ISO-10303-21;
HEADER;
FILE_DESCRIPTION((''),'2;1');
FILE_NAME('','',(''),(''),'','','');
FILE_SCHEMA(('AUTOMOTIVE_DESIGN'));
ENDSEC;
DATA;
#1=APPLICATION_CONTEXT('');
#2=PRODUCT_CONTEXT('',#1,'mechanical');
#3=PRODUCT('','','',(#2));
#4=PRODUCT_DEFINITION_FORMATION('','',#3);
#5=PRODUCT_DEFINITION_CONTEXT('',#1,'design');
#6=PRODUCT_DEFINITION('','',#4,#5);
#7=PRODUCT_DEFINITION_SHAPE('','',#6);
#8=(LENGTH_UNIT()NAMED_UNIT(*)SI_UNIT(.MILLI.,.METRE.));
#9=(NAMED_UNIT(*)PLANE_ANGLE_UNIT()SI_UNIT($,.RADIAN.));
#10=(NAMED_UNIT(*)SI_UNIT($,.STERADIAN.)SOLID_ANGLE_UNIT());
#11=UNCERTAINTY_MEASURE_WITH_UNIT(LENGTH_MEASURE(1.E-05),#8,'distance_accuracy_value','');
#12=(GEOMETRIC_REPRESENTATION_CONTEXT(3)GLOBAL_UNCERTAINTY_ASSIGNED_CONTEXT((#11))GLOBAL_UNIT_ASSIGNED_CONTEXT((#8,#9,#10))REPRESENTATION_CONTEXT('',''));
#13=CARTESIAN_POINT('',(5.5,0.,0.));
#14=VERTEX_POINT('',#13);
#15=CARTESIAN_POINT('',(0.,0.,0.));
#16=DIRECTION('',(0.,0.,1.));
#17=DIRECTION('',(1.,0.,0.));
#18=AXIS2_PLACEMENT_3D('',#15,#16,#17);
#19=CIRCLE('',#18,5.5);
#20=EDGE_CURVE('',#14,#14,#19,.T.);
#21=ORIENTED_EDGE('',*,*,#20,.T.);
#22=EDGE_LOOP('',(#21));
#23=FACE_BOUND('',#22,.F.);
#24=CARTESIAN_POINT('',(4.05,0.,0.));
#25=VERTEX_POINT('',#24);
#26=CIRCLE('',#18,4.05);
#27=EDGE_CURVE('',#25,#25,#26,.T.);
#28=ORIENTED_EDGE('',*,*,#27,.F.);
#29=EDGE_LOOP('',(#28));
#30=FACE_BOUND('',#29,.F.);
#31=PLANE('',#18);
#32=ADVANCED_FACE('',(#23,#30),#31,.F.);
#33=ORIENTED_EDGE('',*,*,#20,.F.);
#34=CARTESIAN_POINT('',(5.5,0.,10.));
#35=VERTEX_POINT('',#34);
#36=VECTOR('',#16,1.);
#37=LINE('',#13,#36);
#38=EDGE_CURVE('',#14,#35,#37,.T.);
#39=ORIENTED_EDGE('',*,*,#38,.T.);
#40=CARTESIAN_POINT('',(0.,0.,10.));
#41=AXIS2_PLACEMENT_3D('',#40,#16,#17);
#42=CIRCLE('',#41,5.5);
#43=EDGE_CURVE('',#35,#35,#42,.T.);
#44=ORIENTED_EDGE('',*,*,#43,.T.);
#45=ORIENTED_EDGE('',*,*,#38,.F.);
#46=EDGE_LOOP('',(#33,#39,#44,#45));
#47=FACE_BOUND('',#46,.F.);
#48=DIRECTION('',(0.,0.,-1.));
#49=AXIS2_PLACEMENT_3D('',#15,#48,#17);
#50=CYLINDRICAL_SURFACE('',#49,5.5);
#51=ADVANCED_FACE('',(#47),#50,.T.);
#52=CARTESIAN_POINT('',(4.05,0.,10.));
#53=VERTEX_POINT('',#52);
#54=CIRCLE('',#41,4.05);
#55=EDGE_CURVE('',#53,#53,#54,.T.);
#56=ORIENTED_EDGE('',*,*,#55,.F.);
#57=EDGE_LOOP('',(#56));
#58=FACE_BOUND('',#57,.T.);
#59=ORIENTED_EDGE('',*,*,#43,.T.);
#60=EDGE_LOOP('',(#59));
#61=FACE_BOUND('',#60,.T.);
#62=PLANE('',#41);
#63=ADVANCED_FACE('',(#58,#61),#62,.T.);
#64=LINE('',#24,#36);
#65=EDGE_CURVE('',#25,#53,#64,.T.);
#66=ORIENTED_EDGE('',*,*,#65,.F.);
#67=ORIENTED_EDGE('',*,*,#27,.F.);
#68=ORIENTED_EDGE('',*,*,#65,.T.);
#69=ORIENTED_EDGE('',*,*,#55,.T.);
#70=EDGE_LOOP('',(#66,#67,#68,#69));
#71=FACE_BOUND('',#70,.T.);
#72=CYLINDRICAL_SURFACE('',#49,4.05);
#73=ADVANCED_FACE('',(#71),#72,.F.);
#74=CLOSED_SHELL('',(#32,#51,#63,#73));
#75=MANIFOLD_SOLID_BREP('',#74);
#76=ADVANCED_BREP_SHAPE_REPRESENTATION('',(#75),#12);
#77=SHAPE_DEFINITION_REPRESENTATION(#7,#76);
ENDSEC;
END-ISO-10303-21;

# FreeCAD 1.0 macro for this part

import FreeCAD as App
import Part
import Sketcher

doc = App.newDocument("Part")
params = doc.addObject("Spreadsheet::Sheet", "Params")
for row, (alias, value) in enumerate([
    ("sketch1_diameter", "11 mm"),
    ("sketch1_diameter2", "8.1 mm"),
    ("pad1_length", "10 mm"),
], start=1):
    params.set(f"A{row}", alias)
    params.set(f"B{row}", "=" + value)
    params.setAlias(f"B{row}", alias)

body = doc.addObject("PartDesign::Body", "Body")

# Sketch on XY plane
sketch1 = body.newObject("Sketcher::SketchObject", "Sketch")
sketch1.AttachmentSupport = (doc.getObject("XY_Plane"), [""])
sketch1.MapMode = "FlatFace"
sketch1.addGeometry(Part.Circle(App.Vector(0, 0, 0), App.Vector(0, 0, 1), 5.5), False)
sketch1.addGeometry(Part.Circle(App.Vector(0, 0, 0), App.Vector(0, 0, 1), 4.05), False)
sketch1.addConstraint(Sketcher.Constraint("Coincident", 0, 3, -1, 1))
sketch1.addConstraint(Sketcher.Constraint("Coincident", 1, 3, -1, 1))
sketch1.addConstraint(Sketcher.Constraint("Diameter", 0, 11.0))
sketch1.addConstraint(Sketcher.Constraint("Diameter", 1, 8.1))
sketch1.setExpression("Constraints[2]", "Params.sketch1_diameter")
sketch1.setExpression("Constraints[3]", "Params.sketch1_diameter2")
pad1 = body.newObject("PartDesign::Pad", "Pad")
pad1.Profile = sketch1
pad1.setExpression("Length", "Params.pad1_length")

doc.recompute()
